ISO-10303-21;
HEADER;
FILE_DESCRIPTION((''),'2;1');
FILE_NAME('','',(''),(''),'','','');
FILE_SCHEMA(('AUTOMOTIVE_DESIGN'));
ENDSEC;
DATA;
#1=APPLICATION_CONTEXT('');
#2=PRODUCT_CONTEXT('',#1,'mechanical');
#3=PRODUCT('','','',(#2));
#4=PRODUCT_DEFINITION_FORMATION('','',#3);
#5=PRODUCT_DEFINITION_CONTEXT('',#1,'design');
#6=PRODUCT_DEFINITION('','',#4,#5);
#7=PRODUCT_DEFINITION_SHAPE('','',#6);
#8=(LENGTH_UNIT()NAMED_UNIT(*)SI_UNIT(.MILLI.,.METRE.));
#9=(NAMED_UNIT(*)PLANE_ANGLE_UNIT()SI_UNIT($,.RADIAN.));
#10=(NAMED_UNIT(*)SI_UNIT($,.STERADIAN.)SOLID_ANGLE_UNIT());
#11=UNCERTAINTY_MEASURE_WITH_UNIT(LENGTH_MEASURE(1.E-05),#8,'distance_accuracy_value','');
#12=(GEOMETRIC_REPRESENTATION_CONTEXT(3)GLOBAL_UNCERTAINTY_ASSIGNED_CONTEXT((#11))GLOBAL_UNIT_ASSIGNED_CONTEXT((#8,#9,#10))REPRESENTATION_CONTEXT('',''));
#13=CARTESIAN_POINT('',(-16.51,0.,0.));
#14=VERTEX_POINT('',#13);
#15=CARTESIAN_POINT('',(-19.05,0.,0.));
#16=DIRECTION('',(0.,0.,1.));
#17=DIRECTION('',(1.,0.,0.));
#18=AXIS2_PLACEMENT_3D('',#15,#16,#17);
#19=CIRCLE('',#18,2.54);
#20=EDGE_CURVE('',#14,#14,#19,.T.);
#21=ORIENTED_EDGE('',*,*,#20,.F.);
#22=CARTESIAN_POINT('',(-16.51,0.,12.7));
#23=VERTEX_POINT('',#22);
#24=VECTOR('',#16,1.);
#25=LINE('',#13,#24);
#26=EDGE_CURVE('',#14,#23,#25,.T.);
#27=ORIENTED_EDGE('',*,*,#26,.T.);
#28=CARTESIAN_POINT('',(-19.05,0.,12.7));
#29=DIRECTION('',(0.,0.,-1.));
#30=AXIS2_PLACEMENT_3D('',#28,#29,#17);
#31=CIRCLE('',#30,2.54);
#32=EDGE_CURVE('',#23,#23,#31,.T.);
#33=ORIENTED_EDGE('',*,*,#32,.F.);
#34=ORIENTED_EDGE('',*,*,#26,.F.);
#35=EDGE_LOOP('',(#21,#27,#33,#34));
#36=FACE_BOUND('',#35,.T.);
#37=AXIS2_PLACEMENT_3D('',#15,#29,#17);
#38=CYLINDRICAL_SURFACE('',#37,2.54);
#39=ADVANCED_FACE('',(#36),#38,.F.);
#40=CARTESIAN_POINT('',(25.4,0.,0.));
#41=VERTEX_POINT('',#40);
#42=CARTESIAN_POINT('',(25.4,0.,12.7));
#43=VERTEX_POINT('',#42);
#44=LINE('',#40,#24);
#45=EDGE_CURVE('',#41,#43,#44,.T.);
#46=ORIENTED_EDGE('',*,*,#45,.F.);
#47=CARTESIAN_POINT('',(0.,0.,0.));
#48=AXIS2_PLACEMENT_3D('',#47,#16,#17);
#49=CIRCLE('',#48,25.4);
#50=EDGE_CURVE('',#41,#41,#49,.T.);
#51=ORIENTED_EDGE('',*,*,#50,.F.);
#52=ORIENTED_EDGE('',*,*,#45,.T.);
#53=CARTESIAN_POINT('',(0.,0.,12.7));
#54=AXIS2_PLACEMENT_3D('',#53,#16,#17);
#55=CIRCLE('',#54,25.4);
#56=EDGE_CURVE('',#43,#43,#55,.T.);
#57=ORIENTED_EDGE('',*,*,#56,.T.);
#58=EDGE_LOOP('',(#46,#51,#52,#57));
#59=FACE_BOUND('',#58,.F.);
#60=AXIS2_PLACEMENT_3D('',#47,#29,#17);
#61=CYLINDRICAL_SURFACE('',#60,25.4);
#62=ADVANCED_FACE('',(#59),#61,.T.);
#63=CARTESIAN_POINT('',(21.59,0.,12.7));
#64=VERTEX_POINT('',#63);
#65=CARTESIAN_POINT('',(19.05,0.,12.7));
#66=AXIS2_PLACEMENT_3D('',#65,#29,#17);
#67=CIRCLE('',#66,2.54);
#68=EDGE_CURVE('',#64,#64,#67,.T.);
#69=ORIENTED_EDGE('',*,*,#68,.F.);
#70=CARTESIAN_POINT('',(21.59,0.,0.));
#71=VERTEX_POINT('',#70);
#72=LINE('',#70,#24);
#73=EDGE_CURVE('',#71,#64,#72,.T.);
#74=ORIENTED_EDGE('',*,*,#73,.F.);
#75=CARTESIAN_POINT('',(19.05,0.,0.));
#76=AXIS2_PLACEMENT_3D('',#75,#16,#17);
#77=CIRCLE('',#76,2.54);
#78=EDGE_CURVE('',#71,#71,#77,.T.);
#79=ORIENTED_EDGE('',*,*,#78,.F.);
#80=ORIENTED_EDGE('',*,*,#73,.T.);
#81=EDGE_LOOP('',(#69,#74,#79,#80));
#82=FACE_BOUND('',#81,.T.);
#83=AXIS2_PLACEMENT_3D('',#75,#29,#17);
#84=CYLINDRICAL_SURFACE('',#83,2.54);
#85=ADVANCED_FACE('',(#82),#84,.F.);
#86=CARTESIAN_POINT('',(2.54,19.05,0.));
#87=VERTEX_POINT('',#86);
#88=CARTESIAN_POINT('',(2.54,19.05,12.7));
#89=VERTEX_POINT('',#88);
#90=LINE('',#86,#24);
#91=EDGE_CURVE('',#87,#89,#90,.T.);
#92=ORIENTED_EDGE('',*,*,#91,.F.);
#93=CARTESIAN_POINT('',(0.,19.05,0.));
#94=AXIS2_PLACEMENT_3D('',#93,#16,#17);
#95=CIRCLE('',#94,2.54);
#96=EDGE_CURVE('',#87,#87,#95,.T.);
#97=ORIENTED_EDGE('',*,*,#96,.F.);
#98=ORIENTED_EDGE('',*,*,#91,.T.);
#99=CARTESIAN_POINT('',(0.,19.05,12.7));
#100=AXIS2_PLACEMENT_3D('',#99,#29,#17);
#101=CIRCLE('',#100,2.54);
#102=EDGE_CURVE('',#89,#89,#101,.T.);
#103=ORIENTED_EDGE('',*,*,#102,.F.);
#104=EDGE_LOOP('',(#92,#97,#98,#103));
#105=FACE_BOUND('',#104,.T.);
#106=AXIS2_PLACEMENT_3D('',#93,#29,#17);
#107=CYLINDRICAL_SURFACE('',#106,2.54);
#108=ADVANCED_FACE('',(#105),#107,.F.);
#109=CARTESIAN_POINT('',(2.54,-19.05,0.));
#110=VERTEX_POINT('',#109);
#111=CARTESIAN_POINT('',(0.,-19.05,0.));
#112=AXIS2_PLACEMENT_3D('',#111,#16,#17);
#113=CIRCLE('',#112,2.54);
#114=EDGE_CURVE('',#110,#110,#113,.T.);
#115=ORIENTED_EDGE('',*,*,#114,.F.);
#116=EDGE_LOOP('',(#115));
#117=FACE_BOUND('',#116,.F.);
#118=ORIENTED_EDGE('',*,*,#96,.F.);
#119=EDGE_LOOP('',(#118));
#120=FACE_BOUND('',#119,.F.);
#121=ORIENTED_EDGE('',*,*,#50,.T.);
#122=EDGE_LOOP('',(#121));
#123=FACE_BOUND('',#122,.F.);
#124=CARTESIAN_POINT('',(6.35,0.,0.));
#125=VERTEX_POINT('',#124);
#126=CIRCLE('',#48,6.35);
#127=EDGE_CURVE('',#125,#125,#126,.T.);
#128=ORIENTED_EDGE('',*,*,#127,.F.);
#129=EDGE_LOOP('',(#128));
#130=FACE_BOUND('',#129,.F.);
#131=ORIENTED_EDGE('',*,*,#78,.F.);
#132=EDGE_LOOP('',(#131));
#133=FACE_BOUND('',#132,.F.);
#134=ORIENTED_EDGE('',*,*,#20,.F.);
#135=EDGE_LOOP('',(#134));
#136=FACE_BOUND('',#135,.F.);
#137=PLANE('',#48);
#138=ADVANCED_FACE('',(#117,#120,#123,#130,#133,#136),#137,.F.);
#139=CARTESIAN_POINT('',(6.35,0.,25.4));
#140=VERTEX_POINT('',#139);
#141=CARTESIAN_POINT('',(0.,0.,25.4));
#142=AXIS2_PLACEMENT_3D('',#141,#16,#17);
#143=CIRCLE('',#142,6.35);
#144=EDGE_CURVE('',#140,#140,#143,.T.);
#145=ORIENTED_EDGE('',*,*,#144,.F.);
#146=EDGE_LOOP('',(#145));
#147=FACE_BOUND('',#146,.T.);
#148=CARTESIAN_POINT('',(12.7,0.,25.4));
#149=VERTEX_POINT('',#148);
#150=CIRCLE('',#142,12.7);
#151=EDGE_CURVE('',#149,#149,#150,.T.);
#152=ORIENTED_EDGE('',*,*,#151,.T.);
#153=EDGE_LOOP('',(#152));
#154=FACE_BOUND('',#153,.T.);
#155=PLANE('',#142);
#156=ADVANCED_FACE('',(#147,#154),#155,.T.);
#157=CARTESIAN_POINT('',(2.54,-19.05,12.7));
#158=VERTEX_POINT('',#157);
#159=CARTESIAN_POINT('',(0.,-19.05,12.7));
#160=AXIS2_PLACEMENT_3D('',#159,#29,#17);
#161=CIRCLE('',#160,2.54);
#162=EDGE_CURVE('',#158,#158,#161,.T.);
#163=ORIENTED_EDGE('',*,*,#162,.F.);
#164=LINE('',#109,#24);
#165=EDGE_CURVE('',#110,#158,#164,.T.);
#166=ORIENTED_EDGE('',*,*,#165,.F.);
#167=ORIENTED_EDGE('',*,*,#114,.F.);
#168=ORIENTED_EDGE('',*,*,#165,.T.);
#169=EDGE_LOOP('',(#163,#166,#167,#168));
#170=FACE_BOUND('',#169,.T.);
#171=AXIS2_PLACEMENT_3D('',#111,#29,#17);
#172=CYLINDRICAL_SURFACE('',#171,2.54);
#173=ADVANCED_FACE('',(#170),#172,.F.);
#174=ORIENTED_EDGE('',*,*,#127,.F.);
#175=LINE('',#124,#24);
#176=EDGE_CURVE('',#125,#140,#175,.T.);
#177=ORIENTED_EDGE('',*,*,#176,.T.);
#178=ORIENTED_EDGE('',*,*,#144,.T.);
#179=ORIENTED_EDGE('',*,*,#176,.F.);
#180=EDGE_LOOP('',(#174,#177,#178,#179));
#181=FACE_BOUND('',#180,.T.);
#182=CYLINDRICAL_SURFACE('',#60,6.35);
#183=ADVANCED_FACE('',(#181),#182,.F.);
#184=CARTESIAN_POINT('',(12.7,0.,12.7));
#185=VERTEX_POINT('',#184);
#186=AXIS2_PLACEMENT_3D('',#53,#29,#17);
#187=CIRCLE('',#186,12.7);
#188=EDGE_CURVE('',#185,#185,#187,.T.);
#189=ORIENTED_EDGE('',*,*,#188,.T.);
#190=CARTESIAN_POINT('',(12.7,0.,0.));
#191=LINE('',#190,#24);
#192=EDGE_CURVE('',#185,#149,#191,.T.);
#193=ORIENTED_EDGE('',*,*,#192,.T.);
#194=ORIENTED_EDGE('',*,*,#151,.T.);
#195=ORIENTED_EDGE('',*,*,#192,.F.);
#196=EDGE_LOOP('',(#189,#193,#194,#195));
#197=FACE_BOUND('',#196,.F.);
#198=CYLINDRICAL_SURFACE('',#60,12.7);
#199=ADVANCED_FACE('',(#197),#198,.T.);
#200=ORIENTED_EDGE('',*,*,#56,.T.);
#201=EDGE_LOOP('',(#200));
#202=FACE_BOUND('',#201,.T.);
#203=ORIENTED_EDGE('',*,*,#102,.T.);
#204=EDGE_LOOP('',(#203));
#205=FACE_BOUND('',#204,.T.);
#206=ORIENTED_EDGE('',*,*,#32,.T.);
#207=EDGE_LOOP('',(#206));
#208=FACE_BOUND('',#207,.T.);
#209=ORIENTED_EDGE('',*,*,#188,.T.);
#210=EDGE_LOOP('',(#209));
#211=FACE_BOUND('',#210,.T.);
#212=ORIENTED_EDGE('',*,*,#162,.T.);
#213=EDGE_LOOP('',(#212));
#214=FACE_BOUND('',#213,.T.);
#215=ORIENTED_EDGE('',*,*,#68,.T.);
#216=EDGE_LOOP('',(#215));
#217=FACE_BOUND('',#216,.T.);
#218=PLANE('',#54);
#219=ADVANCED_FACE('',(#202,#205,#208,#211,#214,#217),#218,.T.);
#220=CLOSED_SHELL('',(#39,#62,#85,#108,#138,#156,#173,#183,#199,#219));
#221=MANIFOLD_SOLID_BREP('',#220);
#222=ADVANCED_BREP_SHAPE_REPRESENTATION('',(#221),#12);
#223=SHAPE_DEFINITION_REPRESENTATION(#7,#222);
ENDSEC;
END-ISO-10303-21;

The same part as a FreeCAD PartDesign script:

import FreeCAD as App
import Part
import Sketcher

V = App.Vector
Q = App.Units.Quantity

doc = App.newDocument("Part")
params = doc.addObject("Spreadsheet::Sheet", "Params")
for row, (alias, value) in enumerate([
    ("sketch1_diameter", "2 in"),
    ("pad1_length", "0.5 in"),
    ("sketch2_diameter", "1 in"),
    ("pad2_length", "1 in"),
    ("sketch3_diameter", "0.2 in"),
    ("sketch3_diameter2", "0.5 in"),
    ("pocket1_length", "1 in"),
], start=1):
    params.set(f"A{row}", alias)
    params.set(f"B{row}", "=" + value)
    params.setAlias(f"B{row}", alias)

body = doc.addObject("PartDesign::Body", "Body")

# Sketch on XY plane
sketch1 = doc.addObject("Sketcher::SketchObject", "Sketch")
body.addObject(sketch1)
sketch1.AttachmentSupport = (doc.XY_Plane, [""])
sketch1.MapMode = "FlatFace"
sketch1.addGeometry(Part.Circle(V(0, 0, 0), V(0, 0, 1), 25), False)
sketch1.addConstraint(Sketcher.Constraint("Coincident", 0, 3, -1, 1))
sketch1.addConstraint(Sketcher.Constraint("Diameter", 0, Q("2 in")))
sketch1.setExpression("Constraints[1]", "Params.sketch1_diameter")
pad1 = doc.addObject("PartDesign::Pad", "Pad")
body.addObject(pad1)
pad1.Profile = sketch1
pad1.setExpression("Length", "Params.pad1_length")

# Sketch on XY plane
sketch2 = doc.addObject("Sketcher::SketchObject", "Sketch001")
body.addObject(sketch2)
sketch2.AttachmentSupport = (doc.XY_Plane, [""])
sketch2.MapMode = "FlatFace"
sketch2.addGeometry(Part.Circle(V(0, 0, 0), V(0, 0, 1), 13), False)
sketch2.addConstraint(Sketcher.Constraint("Coincident", 0, 3, -1, 1))
sketch2.addConstraint(Sketcher.Constraint("Diameter", 0, Q("1 in")))
sketch2.setExpression("Constraints[1]", "Params.sketch2_diameter")
pad2 = doc.addObject("PartDesign::Pad", "Pad001")
body.addObject(pad2)
pad2.Profile = sketch2
pad2.setExpression("Length", "Params.pad2_length")

# Sketch on XY plane
sketch3 = doc.addObject("Sketcher::SketchObject", "Sketch002")
body.addObject(sketch3)
sketch3.AttachmentSupport = (doc.XY_Plane, [""])
sketch3.MapMode = "FlatFace"
sketch3.addGeometry(Part.Circle(V(0, 19.1, 0), V(0, 0, 1), 2.5), False)
sketch3.addGeometry(Part.Circle(V(-19.1, 0, 0), V(0, 0, 1), 2.5), False)
sketch3.addGeometry(Part.Circle(V(0, -19.1, 0), V(0, 0, 1), 2.5), False)
sketch3.addGeometry(Part.Circle(V(19.1, 0, 0), V(0, 0, 1), 2.5), False)
sketch3.addGeometry(Part.Circle(V(0, 0, 0), V(0, 0, 1), 6.3), False)
sketch3.addConstraint(Sketcher.Constraint("Coincident", 4, 3, -1, 1))
sketch3.addConstraint(Sketcher.Constraint("Equal", 0, 1))
sketch3.addConstraint(Sketcher.Constraint("Equal", 1, 2))
sketch3.addConstraint(Sketcher.Constraint("Equal", 2, 3))
sketch3.addConstraint(Sketcher.Constraint("Symmetric", 0, 3, 2, 3, -1, 1))
sketch3.addConstraint(Sketcher.Constraint("Symmetric", 1, 3, 3, 3, -1, 1))
sketch3.addConstraint(Sketcher.Constraint("PointOnObject", 0, 3, -2))
sketch3.addConstraint(Sketcher.Constraint("PointOnObject", 1, 3, -1))
sketch3.addConstraint(Sketcher.Constraint("Diameter", 0, Q("0.2 in")))
sketch3.addConstraint(Sketcher.Constraint("Diameter", 4, Q("0.5 in")))
sketch3.addConstraint(Sketcher.Constraint("DistanceY", 2, 3, 0, 3, Q("1.5 in")))
sketch3.addConstraint(Sketcher.Constraint("DistanceX", 1, 3, 3, 3, Q("1.5 in")))
sketch3.setExpression("Constraints[8]", "Params.sketch3_diameter")
sketch3.setExpression("Constraints[9]", "Params.sketch3_diameter2")
pocket1 = doc.addObject("PartDesign::Pocket", "Pocket")
body.addObject(pocket1)
pocket1.Profile = sketch3
pocket1.setExpression("Length", "Params.pocket1_length")
pocket1.Reversed = True

doc.recompute()
